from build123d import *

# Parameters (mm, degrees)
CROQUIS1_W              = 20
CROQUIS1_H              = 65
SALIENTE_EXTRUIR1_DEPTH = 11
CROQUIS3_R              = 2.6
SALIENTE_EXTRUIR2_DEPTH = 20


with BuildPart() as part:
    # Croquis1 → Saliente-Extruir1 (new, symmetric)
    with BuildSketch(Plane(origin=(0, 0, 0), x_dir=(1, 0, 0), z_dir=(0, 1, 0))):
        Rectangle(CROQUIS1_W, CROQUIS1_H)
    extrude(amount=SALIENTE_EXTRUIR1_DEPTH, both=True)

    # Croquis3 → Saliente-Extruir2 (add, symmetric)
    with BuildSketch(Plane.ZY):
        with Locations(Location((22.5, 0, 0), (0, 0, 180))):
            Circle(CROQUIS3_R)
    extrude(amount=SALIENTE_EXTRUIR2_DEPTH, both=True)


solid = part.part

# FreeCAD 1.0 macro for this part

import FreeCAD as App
import Part
import Sketcher
from FreeCAD import Vector


def add_polygon(sketch, points):
    """Adds a closed chain of lines whose ends are joined by coincident constraints."""
    first, n = sketch.GeometryCount, len(points)
    for a, b in zip(points, points[1:] + points[:1]):
        sketch.addGeometry(Part.LineSegment(App.Vector(*a, 0), App.Vector(*b, 0)), False)
    for i in range(n):
        sketch.addConstraint(Sketcher.Constraint("Coincident", first + i, 2, first + (i + 1) % n, 1))

doc = App.newDocument("Part")
body = doc.addObject("PartDesign::Body", "Body")

# Sketch on XZ plane
sketch1 = doc.addObject("Sketcher::SketchObject", "Sketch")
body.addObject(sketch1)
sketch1.AttachmentSupport = (doc.XZ_Plane, [""])
sketch1.MapMode = "FlatFace"
add_polygon(sketch1, [(-10, -32.5), (-10, 32.5), (10, 32.5), (10, -32.5)])  # lines 0-3
sketch1.addConstraint([
    Sketcher.Constraint("Vertical", 0),
    Sketcher.Constraint("Horizontal", 1),
    Sketcher.Constraint("Vertical", 2),
    Sketcher.Constraint("Horizontal", 3),
    Sketcher.Constraint("Symmetric", 0, 2, 2, 2, -1, 1),
    Sketcher.Constraint("DistanceX", 1, 1, 1, 2, 20.0),
    Sketcher.Constraint("DistanceY", 0, 1, 0, 2, 65.0),
])
pad1 = doc.addObject("PartDesign::Pad", "Pad")
body.addObject(pad1)
pad1.Profile = sketch1
pad1.Length = 22
pad1.Midplane = True

# Sketch on YZ plane
sketch2 = doc.addObject("Sketcher::SketchObject", "Sketch001")
body.addObject(sketch2)
sketch2.AttachmentSupport = (doc.YZ_Plane, [""])
sketch2.MapMode = "FlatFace"
sketch2.addGeometry(Part.Circle(Vector(0, 22.5, 0), Vector(0, 0, 1), 2.6), False)
sketch2.addConstraint([
    Sketcher.Constraint("PointOnObject", 0, 3, -2),
    Sketcher.Constraint("Diameter", 0, 5.2),
    Sketcher.Constraint("DistanceY", -1, 1, 0, 3, 22.5),
])
pad2 = doc.addObject("PartDesign::Pad", "Pad001")
body.addObject(pad2)
pad2.Profile = sketch2
pad2.Length = 40
pad2.Midplane = True

doc.recompute()
